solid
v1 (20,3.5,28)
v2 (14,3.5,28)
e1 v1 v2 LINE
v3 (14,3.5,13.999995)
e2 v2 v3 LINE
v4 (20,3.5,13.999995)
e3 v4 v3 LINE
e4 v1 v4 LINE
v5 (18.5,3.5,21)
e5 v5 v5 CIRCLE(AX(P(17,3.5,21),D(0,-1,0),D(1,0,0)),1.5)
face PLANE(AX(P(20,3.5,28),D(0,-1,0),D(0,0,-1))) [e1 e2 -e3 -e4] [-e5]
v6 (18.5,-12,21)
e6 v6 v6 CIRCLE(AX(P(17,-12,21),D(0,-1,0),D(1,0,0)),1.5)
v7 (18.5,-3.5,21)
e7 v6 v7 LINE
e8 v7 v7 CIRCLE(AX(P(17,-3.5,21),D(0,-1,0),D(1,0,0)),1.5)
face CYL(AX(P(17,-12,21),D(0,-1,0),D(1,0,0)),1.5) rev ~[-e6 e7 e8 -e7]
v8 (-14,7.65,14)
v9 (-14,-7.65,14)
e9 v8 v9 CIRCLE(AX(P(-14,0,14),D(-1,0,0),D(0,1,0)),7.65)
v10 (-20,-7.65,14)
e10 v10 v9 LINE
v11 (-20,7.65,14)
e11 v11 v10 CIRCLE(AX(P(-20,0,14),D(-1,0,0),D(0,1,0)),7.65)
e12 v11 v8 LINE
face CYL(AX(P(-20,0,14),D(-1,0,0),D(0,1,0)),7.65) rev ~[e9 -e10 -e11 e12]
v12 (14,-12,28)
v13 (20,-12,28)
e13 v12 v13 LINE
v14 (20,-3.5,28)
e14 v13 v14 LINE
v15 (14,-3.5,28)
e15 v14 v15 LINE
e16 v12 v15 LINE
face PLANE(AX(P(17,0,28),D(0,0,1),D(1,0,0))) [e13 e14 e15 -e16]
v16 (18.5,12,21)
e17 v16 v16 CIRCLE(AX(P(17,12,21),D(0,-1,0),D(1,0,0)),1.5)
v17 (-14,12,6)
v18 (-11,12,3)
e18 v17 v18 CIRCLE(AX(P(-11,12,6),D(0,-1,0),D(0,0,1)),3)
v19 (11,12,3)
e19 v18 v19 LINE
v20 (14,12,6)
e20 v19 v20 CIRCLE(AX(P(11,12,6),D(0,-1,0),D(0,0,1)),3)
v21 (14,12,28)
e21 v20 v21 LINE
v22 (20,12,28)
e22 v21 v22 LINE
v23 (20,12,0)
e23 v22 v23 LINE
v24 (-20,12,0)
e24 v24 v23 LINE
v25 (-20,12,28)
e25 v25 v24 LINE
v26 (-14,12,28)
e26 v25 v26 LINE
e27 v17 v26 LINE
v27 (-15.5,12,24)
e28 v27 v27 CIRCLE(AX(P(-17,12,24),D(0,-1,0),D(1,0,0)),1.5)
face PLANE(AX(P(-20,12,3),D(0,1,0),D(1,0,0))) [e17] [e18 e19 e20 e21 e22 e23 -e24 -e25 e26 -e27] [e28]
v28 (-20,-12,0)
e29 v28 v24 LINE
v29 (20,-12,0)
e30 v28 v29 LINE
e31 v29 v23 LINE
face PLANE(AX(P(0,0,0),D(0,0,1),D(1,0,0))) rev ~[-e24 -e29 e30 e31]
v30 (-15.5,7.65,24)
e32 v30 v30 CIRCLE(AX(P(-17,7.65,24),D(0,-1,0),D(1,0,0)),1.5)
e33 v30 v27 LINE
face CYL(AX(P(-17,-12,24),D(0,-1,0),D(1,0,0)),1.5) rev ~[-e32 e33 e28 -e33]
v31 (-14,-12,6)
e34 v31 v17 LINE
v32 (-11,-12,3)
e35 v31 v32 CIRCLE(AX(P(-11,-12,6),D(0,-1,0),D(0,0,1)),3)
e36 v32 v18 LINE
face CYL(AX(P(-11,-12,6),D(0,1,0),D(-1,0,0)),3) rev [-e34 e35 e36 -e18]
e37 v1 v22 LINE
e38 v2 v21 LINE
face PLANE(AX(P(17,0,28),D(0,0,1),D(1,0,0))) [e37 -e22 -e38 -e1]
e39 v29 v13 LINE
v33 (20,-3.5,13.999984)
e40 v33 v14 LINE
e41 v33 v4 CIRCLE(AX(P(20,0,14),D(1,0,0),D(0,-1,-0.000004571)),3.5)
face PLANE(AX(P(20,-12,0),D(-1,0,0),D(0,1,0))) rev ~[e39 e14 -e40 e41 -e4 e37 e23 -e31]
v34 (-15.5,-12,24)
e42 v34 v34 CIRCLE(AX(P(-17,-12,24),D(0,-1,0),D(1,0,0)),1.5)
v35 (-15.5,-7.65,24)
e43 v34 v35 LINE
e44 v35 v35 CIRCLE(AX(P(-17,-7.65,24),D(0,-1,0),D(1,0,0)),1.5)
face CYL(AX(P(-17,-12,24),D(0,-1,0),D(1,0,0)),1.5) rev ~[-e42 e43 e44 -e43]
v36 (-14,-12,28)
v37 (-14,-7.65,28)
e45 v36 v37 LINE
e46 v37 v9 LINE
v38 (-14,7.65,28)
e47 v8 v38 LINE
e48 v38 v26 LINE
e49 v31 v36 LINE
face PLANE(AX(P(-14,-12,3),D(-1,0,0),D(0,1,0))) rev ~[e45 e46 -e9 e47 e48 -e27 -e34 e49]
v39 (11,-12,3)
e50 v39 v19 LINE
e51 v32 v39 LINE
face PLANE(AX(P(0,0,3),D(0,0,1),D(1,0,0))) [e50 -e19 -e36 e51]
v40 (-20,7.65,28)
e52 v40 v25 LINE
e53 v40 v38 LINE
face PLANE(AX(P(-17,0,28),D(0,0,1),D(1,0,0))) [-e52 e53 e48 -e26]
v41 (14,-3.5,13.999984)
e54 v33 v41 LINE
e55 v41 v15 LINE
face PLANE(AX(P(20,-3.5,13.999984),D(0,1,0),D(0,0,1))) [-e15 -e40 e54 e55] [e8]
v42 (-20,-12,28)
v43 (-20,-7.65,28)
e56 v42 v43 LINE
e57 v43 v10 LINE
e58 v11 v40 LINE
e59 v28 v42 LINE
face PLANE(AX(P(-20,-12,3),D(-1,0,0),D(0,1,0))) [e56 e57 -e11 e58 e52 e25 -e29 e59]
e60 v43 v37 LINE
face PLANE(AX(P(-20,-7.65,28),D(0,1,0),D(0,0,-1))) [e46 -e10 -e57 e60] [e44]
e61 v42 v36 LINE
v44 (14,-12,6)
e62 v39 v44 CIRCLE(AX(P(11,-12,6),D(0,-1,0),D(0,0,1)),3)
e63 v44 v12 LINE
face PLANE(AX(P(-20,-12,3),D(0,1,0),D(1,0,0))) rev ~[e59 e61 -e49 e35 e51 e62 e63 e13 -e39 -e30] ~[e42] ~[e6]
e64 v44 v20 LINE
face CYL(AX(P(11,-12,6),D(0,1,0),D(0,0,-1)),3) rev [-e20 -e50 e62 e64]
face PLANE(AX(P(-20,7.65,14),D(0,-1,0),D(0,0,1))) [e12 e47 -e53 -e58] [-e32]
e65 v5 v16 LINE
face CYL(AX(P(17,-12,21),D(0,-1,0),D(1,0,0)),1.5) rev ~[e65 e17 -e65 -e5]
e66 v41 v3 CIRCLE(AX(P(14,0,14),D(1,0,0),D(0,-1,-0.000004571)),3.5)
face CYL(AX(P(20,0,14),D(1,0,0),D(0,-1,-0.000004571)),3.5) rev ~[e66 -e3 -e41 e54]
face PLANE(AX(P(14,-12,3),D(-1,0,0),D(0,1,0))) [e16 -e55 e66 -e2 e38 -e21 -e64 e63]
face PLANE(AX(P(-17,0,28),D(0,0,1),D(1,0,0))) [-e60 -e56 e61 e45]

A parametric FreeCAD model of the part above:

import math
import FreeCAD as App
import Part
import Sketcher
from FreeCAD import Vector
Q = App.Units.Quantity


def edges_at(feature, points):
    """Names of the edges that pass closest to the given points."""
    edges = feature.Shape.Edges
    near = lambda p: min(range(len(edges)), key=lambda i: edges[i].distToShape(Part.Vertex(*p))[0])
    return sorted({f"Edge{near(p) + 1}" for p in points})

doc = App.newDocument("Part")
body = doc.addObject("PartDesign::Body", "Body")

# Sketch on XY plane
sketch1 = doc.addObject("Sketcher::SketchObject", "Sketch")
body.addObject(sketch1)
sketch1.AttachmentSupport = (doc.XY_Plane, [""])
sketch1.MapMode = "FlatFace"
sketch1.addGeometry([
    Part.LineSegment(Vector(-20, 12, 0), Vector(-20, -12, 0)),
    Part.LineSegment(Vector(-20, -12, 0), Vector(20, -12, 0)),
    Part.LineSegment(Vector(20, -12, 0), Vector(20, 12, 0)),
    Part.LineSegment(Vector(20, 12, 0), Vector(-20, 12, 0)),
], False)
sketch1.addConstraint([
    Sketcher.Constraint("Coincident", 0, 2, 1, 1),
    Sketcher.Constraint("Coincident", 1, 2, 2, 1),
    Sketcher.Constraint("Coincident", 2, 2, 3, 1),
    Sketcher.Constraint("Coincident", 3, 2, 0, 1),
    Sketcher.Constraint("Vertical", 0),
    Sketcher.Constraint("Horizontal", 1),
    Sketcher.Constraint("Vertical", 2),
    Sketcher.Constraint("Horizontal", 3),
    Sketcher.Constraint("Symmetric", 0, 2, 2, 2, -1, 1),
    Sketcher.Constraint("DistanceX", 1, 1, 1, 2, Q("40 mm")),
    Sketcher.Constraint("DistanceY", 0, 2, 0, 1, Q("24 mm")),
])
pad1 = doc.addObject("PartDesign::Pad", "Pad")
body.addObject(pad1)
pad1.Profile = sketch1
pad1.Length = 3

# Sketch on XY plane
sketch2 = doc.addObject("Sketcher::SketchObject", "Sketch001")
body.addObject(sketch2)
sketch2.AttachmentSupport = (doc.XY_Plane, [""])
sketch2.MapMode = "FlatFace"
sketch2.AttachmentOffset = App.Placement(Vector(0, 0, 3), App.Rotation())
sketch2.addGeometry([
    Part.LineSegment(Vector(-20, 12, 0), Vector(-20, -12, 0)),  # 0
    Part.LineSegment(Vector(-20, -12, 0), Vector(-14, -12, 0)),  # 1
    Part.LineSegment(Vector(-14, -12, 0), Vector(-14, 12, 0)),  # 2
    Part.LineSegment(Vector(-14, 12, 0), Vector(-20, 12, 0)),  # 3
    Part.LineSegment(Vector(14, 12, 0), Vector(14, -12, 0)),  # 4
    Part.LineSegment(Vector(14, -12, 0), Vector(20, -12, 0)),  # 5
    Part.LineSegment(Vector(20, -12, 0), Vector(20, 12, 0)),  # 6
    Part.LineSegment(Vector(20, 12, 0), Vector(14, 12, 0)),  # 7
], False)
sketch2.addConstraint([
    Sketcher.Constraint("Coincident", 0, 2, 1, 1),
    Sketcher.Constraint("Coincident", 1, 2, 2, 1),
    Sketcher.Constraint("Coincident", 2, 2, 3, 1),
    Sketcher.Constraint("Coincident", 3, 2, 0, 1),
    Sketcher.Constraint("Coincident", 4, 2, 5, 1),
    Sketcher.Constraint("Coincident", 5, 2, 6, 1),
    Sketcher.Constraint("Coincident", 6, 2, 7, 1),
    Sketcher.Constraint("Coincident", 7, 2, 4, 1),
    Sketcher.Constraint("Vertical", 0),
    Sketcher.Constraint("Horizontal", 1),
    Sketcher.Constraint("Vertical", 2),
    Sketcher.Constraint("Horizontal", 3),
    Sketcher.Constraint("Vertical", 4),
    Sketcher.Constraint("Horizontal", 5),
    Sketcher.Constraint("Vertical", 6),
    Sketcher.Constraint("Horizontal", 7),
    Sketcher.Constraint("Symmetric", 2, 2, 4, 2, -1, 1),
    Sketcher.Constraint("Symmetric", 0, 2, 6, 2, -1, 1),
    Sketcher.Constraint("Horizontal", 1, 2, 4, 2),
    Sketcher.Constraint("DistanceX", 1, 1, 1, 2, Q("6 mm")),
    Sketcher.Constraint("DistanceY", 0, 2, 0, 1, Q("24 mm")),
    Sketcher.Constraint("DistanceX", 0, 2, -1, 1, Q("20 mm")),
])
pad2 = doc.addObject("PartDesign::Pad", "Pad001")
body.addObject(pad2)
pad2.Profile = sketch2
pad2.Length = 25

# Sketch on YZ plane
sketch3 = doc.addObject("Sketcher::SketchObject", "Sketch002")
body.addObject(sketch3)
sketch3.AttachmentSupport = (doc.YZ_Plane, [""])
sketch3.MapMode = "FlatFace"
sketch3.AttachmentOffset = App.Placement(Vector(0, 0, 20), App.Rotation())
sketch3.addGeometry([
    Part.LineSegment(Vector(3.5, 28, 0), Vector(-3.5, 28, 0)),
    Part.LineSegment(Vector(-3.5, 28, 0), Vector(-3.5, 14, 0)),
    Part.ArcOfCircle(Part.Circle(Vector(0, 14, 0), Vector(0, 0, 1), 3.5), math.radians(-180), math.radians(0)),
    Part.LineSegment(Vector(3.5, 14, 0), Vector(3.5, 28, 0)),
], False)
sketch3.addConstraint([
    Sketcher.Constraint("Coincident", 0, 2, 1, 1),
    Sketcher.Constraint("Coincident", 1, 2, 2, 1),
    Sketcher.Constraint("Tangent", 2, 2, 3, 1),
    Sketcher.Constraint("Coincident", 3, 2, 0, 1),
    Sketcher.Constraint("Horizontal", 0),
    Sketcher.Constraint("Vertical", 1),
    Sketcher.Constraint("Vertical", 3),
    Sketcher.Constraint("PointOnObject", 2, 3, -2),
    Sketcher.Constraint("Radius", 2, Q("3.5 mm")),
    Sketcher.Constraint("DistanceY", -1, 1, 2, 3, Q("14 mm")),
    Sketcher.Constraint("DistanceY", -1, 1, 0, 2, Q("28 mm")),
    Sketcher.Constraint("DistanceY", 1, 2, 1, 1, Q("14.000016 mm")),
])
pocket1 = doc.addObject("PartDesign::Pocket", "Pocket")
body.addObject(pocket1)
pocket1.Profile = sketch3
pocket1.Length = 6

# Sketch on YZ plane
sketch4 = doc.addObject("Sketcher::SketchObject", "Sketch003")
body.addObject(sketch4)
sketch4.AttachmentSupport = (doc.YZ_Plane, [""])
sketch4.MapMode = "FlatFace"
sketch4.AttachmentOffset = App.Placement(Vector(0, 0, -20), App.Rotation())
sketch4.addGeometry([
    Part.LineSegment(Vector(-8, 28, 0), Vector(8, 28, 0)),
    Part.LineSegment(Vector(8, 28, 0), Vector(8, 14, 0)),
    Part.ArcOfCircle(Part.Circle(Vector(0, 14, 0), Vector(0, 0, 1), 8), math.radians(180), math.radians(360)),
    Part.LineSegment(Vector(-8, 14, 0), Vector(-8, 28, 0)),
], False)
sketch4.addConstraint([
    Sketcher.Constraint("Coincident", 0, 2, 1, 1),
    Sketcher.Constraint("Tangent", 1, 2, 2, 2),
    Sketcher.Constraint("Tangent", 2, 1, 3, 1),
    Sketcher.Constraint("Coincident", 3, 2, 0, 1),
    Sketcher.Constraint("Horizontal", 0),
    Sketcher.Constraint("Vertical", 1),
    Sketcher.Constraint("Vertical", 3),
    Sketcher.Constraint("PointOnObject", 2, 3, -2),
    Sketcher.Constraint("DistanceY", 1, 2, 1, 1, Q("14 mm")),
    Sketcher.Constraint("Radius", 2, Q("7.65 mm")),
    Sketcher.Constraint("DistanceY", -1, 1, 2, 3, Q("14 mm")),
])
pocket2 = doc.addObject("PartDesign::Pocket", "Pocket001")
body.addObject(pocket2)
pocket2.Profile = sketch4
pocket2.Length = 6
pocket2.Reversed = True

# Sketch on XZ plane
sketch5 = doc.addObject("Sketcher::SketchObject", "Sketch004")
body.addObject(sketch5)
sketch5.AttachmentSupport = (doc.XZ_Plane, [""])
sketch5.MapMode = "FlatFace"
sketch5.AttachmentOffset = App.Placement(Vector(0, 0, 12), App.Rotation())
sketch5.addGeometry([
    Part.Circle(Vector(17, 21, 0), Vector(0, 0, 1), 1.5),
    Part.Circle(Vector(-17, 24, 0), Vector(0, 0, 1), 1.5),
], False)
sketch5.addConstraint([
    Sketcher.Constraint("Equal", 0, 1),
    Sketcher.Constraint("Diameter", 0, Q("3 mm")),
    Sketcher.Constraint("DistanceX", -1, 1, 0, 3, Q("17 mm")),
    Sketcher.Constraint("DistanceY", -1, 1, 0, 3, Q("21 mm")),
    Sketcher.Constraint("DistanceX", 1, 3, -1, 1, Q("17 mm")),
    Sketcher.Constraint("DistanceY", -1, 1, 1, 3, Q("24 mm")),
])
pocket3 = doc.addObject("PartDesign::Pocket", "Pocket002")
body.addObject(pocket3)
pocket3.Profile = sketch5
pocket3.Type = "ThroughAll"
doc.recompute()

fillet = doc.addObject("PartDesign::Fillet", "Fillet")
body.addObject(fillet)
fillet.Base = (pocket3, edges_at(pocket3, [(-14, 0, 3), (14, 0, 3)]))
fillet.Radius = 3

doc.recompute()
